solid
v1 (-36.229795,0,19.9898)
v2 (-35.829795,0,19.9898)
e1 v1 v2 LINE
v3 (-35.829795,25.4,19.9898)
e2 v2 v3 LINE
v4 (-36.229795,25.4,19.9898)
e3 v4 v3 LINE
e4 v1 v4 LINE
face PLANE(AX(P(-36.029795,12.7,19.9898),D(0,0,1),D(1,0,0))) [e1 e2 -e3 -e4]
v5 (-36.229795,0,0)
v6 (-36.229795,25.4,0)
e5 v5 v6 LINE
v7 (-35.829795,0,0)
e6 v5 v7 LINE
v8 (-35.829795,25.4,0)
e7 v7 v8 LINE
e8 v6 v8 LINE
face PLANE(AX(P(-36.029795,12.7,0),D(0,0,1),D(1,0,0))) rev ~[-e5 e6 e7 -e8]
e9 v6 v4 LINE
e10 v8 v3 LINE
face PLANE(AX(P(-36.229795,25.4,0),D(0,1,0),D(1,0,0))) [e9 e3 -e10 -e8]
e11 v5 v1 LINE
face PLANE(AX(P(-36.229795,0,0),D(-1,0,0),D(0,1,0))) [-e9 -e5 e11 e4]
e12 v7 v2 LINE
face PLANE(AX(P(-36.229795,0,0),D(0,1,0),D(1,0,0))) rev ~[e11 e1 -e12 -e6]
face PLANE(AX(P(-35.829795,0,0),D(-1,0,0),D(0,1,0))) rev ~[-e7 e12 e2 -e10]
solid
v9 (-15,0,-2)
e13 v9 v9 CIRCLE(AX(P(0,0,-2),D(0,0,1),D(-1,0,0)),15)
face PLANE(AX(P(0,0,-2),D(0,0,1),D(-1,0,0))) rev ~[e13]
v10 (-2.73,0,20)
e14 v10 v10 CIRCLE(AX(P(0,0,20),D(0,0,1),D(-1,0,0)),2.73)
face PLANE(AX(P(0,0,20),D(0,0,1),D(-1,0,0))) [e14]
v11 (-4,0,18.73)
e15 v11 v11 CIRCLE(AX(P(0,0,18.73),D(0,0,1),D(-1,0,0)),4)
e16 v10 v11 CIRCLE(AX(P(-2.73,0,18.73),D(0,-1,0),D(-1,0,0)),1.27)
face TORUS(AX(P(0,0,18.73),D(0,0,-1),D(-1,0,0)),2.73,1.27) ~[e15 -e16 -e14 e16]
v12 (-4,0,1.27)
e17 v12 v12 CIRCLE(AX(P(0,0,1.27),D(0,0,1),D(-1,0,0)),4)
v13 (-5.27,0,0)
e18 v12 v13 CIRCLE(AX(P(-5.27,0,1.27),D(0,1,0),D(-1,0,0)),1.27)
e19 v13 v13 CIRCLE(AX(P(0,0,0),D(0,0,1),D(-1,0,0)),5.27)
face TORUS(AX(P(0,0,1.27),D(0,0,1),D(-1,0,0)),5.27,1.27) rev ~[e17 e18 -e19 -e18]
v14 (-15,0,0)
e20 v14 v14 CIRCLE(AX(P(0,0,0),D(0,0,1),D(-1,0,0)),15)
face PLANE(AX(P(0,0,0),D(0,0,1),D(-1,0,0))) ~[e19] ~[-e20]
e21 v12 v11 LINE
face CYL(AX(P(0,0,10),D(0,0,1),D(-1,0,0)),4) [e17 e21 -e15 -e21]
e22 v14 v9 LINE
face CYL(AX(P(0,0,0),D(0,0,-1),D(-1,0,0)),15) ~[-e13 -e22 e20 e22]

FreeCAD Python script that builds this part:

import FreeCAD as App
import Part
import Sketcher
from FreeCAD import Vector
Q = App.Units.Quantity


def edges_at(feature, points):
    """Names of the edges that pass closest to the given points."""
    edges = feature.Shape.Edges
    near = lambda p: min(range(len(edges)), key=lambda i: edges[i].distToShape(Part.Vertex(*p))[0])
    return sorted({f"Edge{near(p) + 1}" for p in points})

doc = App.newDocument("Part")
params = doc.addObject("Spreadsheet::Sheet", "Params")
for row, (alias, value) in enumerate([
    ("sketch1_width", "4 mm"),
    ("sketch1_width2", "11 mm"),
    ("sketch1_height", "22 mm"),
    ("sketch1_height2", "20 mm"),
    ("revolution_angle", "360 deg"),
    ("fillet_radius", "1.27 mm"),
    ("sketch2_width", "0.4 mm"),
    ("sketch2_height", "25.4 mm"),
    ("pad1_length", "19.9898 mm"),
], start=1):
    params.set(f"A{row}", alias)
    params.set(f"B{row}", "=" + value)
    params.setAlias(f"B{row}", alias)

body = doc.addObject("PartDesign::Body", "Body")

# Sketch on XZ plane
sketch1 = doc.addObject("Sketcher::SketchObject", "Sketch")
body.addObject(sketch1)
sketch1.AttachmentSupport = (doc.XZ_Plane, [""])
sketch1.MapMode = "FlatFace"
sketch1.addGeometry(Part.LineSegment(Vector(0, -2, 0), Vector(0, 20, 0)), False)
sketch1.addGeometry(Part.LineSegment(Vector(0, 20, 0), Vector(-4, 20, 0)), False)
sketch1.addGeometry(Part.LineSegment(Vector(-4, 20, 0), Vector(-4, 0, 0)), False)
sketch1.addGeometry(Part.LineSegment(Vector(-4, 0, 0), Vector(-15, 0, 0)), False)
sketch1.addGeometry(Part.LineSegment(Vector(-15, 0, 0), Vector(-15, -2, 0)), False)
sketch1.addGeometry(Part.LineSegment(Vector(-15, -2, 0), Vector(0, -2, 0)), False)
sketch1.addConstraint(Sketcher.Constraint("Coincident", 0, 2, 1, 1))
sketch1.addConstraint(Sketcher.Constraint("Coincident", 1, 2, 2, 1))
sketch1.addConstraint(Sketcher.Constraint("Coincident", 2, 2, 3, 1))
sketch1.addConstraint(Sketcher.Constraint("Coincident", 3, 2, 4, 1))
sketch1.addConstraint(Sketcher.Constraint("Coincident", 4, 2, 5, 1))
sketch1.addConstraint(Sketcher.Constraint("Coincident", 5, 2, 0, 1))
sketch1.addConstraint(Sketcher.Constraint("Vertical", 0))
sketch1.addConstraint(Sketcher.Constraint("Horizontal", 1))
sketch1.addConstraint(Sketcher.Constraint("Vertical", 2))
sketch1.addConstraint(Sketcher.Constraint("Horizontal", 3))
sketch1.addConstraint(Sketcher.Constraint("Vertical", 4))
sketch1.addConstraint(Sketcher.Constraint("Horizontal", 5))
sketch1.addConstraint(Sketcher.Constraint("PointOnObject", 0, 2, -2))
sketch1.addConstraint(Sketcher.Constraint("PointOnObject", 2, 2, -1))
sketch1.addConstraint(Sketcher.Constraint("DistanceX", 1, 2, 1, 1, Q("4 mm")))
sketch1.addConstraint(Sketcher.Constraint("DistanceX", 3, 2, 3, 1, Q("11 mm")))
sketch1.addConstraint(Sketcher.Constraint("DistanceY", 0, 1, 0, 2, Q("22 mm")))
sketch1.addConstraint(Sketcher.Constraint("DistanceY", 2, 2, 2, 1, Q("20 mm")))
sketch1.setExpression("Constraints[14]", "Params.sketch1_width")
sketch1.setExpression("Constraints[15]", "Params.sketch1_width2")
sketch1.setExpression("Constraints[16]", "Params.sketch1_height")
sketch1.setExpression("Constraints[17]", "Params.sketch1_height2")
revolution = doc.addObject("PartDesign::Revolution", "Revolution")
body.addObject(revolution)
revolution.Profile = sketch1
revolution.ReferenceAxis = (sketch1, ["V_Axis"])
revolution.setExpression("Angle", "Params.revolution_angle")
doc.recompute()

fillet = doc.addObject("PartDesign::Fillet", "Fillet")
body.addObject(fillet)
fillet.Base = (revolution, edges_at(revolution, [(4, 0, 20), (4, 0, 0)]))
fillet.setExpression("Radius", "Params.fillet_radius")
body2 = doc.addObject("PartDesign::Body", "Body001")

# Sketch on XY plane
sketch2 = doc.addObject("Sketcher::SketchObject", "Sketch001")
body2.addObject(sketch2)
sketch2.AttachmentSupport = (doc.getObject("XY_Plane001"), [""])
sketch2.MapMode = "FlatFace"
sketch2.addGeometry(Part.LineSegment(Vector(-36.229795, 25.4, 0), Vector(-36.229795, 0, 0)), False)
sketch2.addGeometry(Part.LineSegment(Vector(-36.229795, 0, 0), Vector(-35.829795, 0, 0)), False)
sketch2.addGeometry(Part.LineSegment(Vector(-35.829795, 0, 0), Vector(-35.829795, 25.4, 0)), False)
sketch2.addGeometry(Part.LineSegment(Vector(-35.829795, 25.4, 0), Vector(-36.229795, 25.4, 0)), False)
sketch2.addConstraint(Sketcher.Constraint("Coincident", 0, 2, 1, 1))
sketch2.addConstraint(Sketcher.Constraint("Coincident", 1, 2, 2, 1))
sketch2.addConstraint(Sketcher.Constraint("Coincident", 2, 2, 3, 1))
sketch2.addConstraint(Sketcher.Constraint("Coincident", 3, 2, 0, 1))
sketch2.addConstraint(Sketcher.Constraint("Vertical", 0))
sketch2.addConstraint(Sketcher.Constraint("Horizontal", 1))
sketch2.addConstraint(Sketcher.Constraint("Vertical", 2))
sketch2.addConstraint(Sketcher.Constraint("Horizontal", 3))
sketch2.addConstraint(Sketcher.Constraint("PointOnObject", 0, 2, -1))
sketch2.addConstraint(Sketcher.Constraint("DistanceX", 1, 1, 1, 2, Q("0.4 mm")))
sketch2.addConstraint(Sketcher.Constraint("DistanceY", 0, 2, 0, 1, Q("25.4 mm")))
sketch2.addConstraint(Sketcher.Constraint("DistanceX", 0, 2, -1, 1, Q("36.229795 mm")))
sketch2.setExpression("Constraints[9]", "Params.sketch2_width")
sketch2.setExpression("Constraints[10]", "Params.sketch2_height")
pad1 = doc.addObject("PartDesign::Pad", "Pad")
body2.addObject(pad1)
pad1.Profile = sketch2
pad1.setExpression("Length", "Params.pad1_length")

doc.recompute()
